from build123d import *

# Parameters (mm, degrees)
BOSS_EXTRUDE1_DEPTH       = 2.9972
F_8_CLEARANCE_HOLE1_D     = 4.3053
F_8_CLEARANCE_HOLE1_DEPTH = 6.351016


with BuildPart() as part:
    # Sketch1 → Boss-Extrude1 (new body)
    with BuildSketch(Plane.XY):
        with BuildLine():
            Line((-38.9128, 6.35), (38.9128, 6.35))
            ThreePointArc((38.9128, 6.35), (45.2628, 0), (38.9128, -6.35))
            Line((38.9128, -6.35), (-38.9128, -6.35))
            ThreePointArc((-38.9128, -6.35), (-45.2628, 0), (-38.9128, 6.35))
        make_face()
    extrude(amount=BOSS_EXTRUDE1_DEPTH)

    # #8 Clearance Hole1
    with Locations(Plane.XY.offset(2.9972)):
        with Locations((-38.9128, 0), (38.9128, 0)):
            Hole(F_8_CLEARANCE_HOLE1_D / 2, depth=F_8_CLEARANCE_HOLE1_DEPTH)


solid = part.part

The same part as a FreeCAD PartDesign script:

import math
import FreeCAD as App
import Part
import Sketcher
Q = App.Units.Quantity

doc = App.newDocument("Part")
body = doc.addObject("PartDesign::Body", "Body")

sketch1 = doc.addObject("Sketcher::SketchObject", "Sketch")
body.addObject(sketch1)
sketch1.AttachmentSupport = (doc.XY_Plane, [""])
sketch1.MapMode = "FlatFace"
sketch1.addGeometry(Part.LineSegment(App.Vector(39, 6, 0), App.Vector(-39, 6, 0)), False)
sketch1.addGeometry(Part.ArcOfCircle(Part.Circle(App.Vector(-39, 0, 0), App.Vector(0, 0, 1), 6), math.radians(90), math.radians(270)), False)
sketch1.addGeometry(Part.LineSegment(App.Vector(-39, -6, 0), App.Vector(39, -6, 0)), False)
sketch1.addGeometry(Part.ArcOfCircle(Part.Circle(App.Vector(39, 0, 0), App.Vector(0, 0, 1), 6), math.radians(-90), math.radians(90)), False)
sketch1.addConstraint(Sketcher.Constraint("Tangent", 0, 2, 1, 1))
sketch1.addConstraint(Sketcher.Constraint("Tangent", 1, 2, 2, 1))
sketch1.addConstraint(Sketcher.Constraint("Tangent", 2, 2, 3, 1))
sketch1.addConstraint(Sketcher.Constraint("Tangent", 3, 2, 0, 1))
sketch1.addConstraint(Sketcher.Constraint("Horizontal", 0))
sketch1.addConstraint(Sketcher.Constraint("Horizontal", 2))
sketch1.addConstraint(Sketcher.Constraint("Symmetric", 1, 3, 3, 3, -1, 1))
sketch1.addConstraint(Sketcher.Constraint("Radius", 1, Q("0.25 in")))
sketch1.addConstraint(Sketcher.Constraint("DistanceX", 0, 2, 0, 1, Q("3.064 in")))
pad1 = doc.addObject("PartDesign::Pad", "Pad")
body.addObject(pad1)
pad1.Profile = sketch1
pad1.Length = Q("0.118 in")

sketch2 = doc.addObject("Sketcher::SketchObject", "Sketch001")
body.addObject(sketch2)
sketch2.AttachmentSupport = (doc.XY_Plane, [""])
sketch2.MapMode = "FlatFace"
sketch2.AttachmentOffset = App.Placement(App.Vector(0, 0, 0.118 * 25.4), App.Rotation())
sketch2.addGeometry(Part.Circle(App.Vector(-38.9, 0, 0), App.Vector(0, 0, 1), 2.2), False)
sketch2.addGeometry(Part.Circle(App.Vector(38.9, 0, 0), App.Vector(0, 0, 1), 2.2), False)
sketch2.addConstraint(Sketcher.Constraint("Equal", 0, 1))
sketch2.addConstraint(Sketcher.Constraint("Symmetric", 0, 3, 1, 3, -1, 1))
sketch2.addConstraint(Sketcher.Constraint("PointOnObject", 0, 3, -1))
sketch2.addConstraint(Sketcher.Constraint("Diameter", 0, Q("0.1695 in")))
sketch2.addConstraint(Sketcher.Constraint("DistanceX", 0, 3, -1, 1, Q("1.532 in")))
doc.recompute()
hole = doc.addObject("PartDesign::Hole", "Hole")
body.addObject(hole)
hole.Profile = sketch2
hole.ThreadType = "None"
hole.Diameter = Q("0.1695 in")
hole.DepthType = "Dimension"
hole.Depth = 6.351016
hole.DrillPoint = "Flat"

doc.recompute()
